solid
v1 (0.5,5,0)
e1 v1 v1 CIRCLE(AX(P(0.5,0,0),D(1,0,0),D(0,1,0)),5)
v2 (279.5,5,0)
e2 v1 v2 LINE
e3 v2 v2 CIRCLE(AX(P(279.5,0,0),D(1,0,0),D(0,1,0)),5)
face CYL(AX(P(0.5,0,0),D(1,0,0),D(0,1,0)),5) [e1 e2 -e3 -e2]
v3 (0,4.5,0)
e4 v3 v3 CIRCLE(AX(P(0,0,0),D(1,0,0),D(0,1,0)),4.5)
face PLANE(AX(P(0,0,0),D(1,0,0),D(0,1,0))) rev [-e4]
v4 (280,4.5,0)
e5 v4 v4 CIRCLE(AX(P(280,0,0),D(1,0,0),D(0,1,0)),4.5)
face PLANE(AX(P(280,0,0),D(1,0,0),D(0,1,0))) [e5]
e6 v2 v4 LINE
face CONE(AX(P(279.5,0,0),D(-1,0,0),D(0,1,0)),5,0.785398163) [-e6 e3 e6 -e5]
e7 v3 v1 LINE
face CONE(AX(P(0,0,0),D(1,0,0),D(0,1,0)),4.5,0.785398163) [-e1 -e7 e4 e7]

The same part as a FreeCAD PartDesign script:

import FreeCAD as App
import Part
import Sketcher

V = App.Vector


def add_polygon(sketch, points):
    """Adds a closed chain of lines whose ends are joined by coincident constraints."""
    first, n = sketch.GeometryCount, len(points)
    for a, b in zip(points, points[1:] + points[:1]):
        sketch.addGeometry(Part.LineSegment(App.Vector(*a, 0), App.Vector(*b, 0)), False)
    for i in range(n):
        sketch.addConstraint(Sketcher.Constraint("Coincident", first + i, 2, first + (i + 1) % n, 1))

doc = App.newDocument("Part")
body = doc.addObject("PartDesign::Body", "Body")

# Sketch on XY plane
sketch1 = doc.addObject("Sketcher::SketchObject", "Sketch")
body.addObject(sketch1)
sketch1.AttachmentSupport = (doc.XY_Plane, [""])
sketch1.MapMode = "FlatFace"
add_polygon(sketch1, [(0, 0), (280, 0), (280, 4.5), (279.5, 5), (0.5, 5), (0, 4.5)])  # lines 0-5
sketch1.addConstraint([
    Sketcher.Constraint("Horizontal", 0),
    Sketcher.Constraint("Vertical", 1),
    Sketcher.Constraint("Horizontal", 3),
    Sketcher.Constraint("Vertical", 5),
    Sketcher.Constraint("Coincident", 5, 2, -1, 1),
    Sketcher.Constraint("Perpendicular", 2, 4),
    Sketcher.Constraint("Horizontal", 1, 2, 4, 2),
    Sketcher.Constraint("Equal", 2, 4),
    Sketcher.Constraint("DistanceX", 0, 1, 0, 2, 280.0),
    Sketcher.Constraint("DistanceX", 3, 2, 3, 1, 279.0),
    Sketcher.Constraint("DistanceY", 1, 1, 1, 2, 4.5),
])
revolution = doc.addObject("PartDesign::Revolution", "Revolution")
body.addObject(revolution)
revolution.Profile = sketch1
revolution.ReferenceAxis = (sketch1, ["H_Axis"])
revolution.Angle = 360

doc.recompute()
